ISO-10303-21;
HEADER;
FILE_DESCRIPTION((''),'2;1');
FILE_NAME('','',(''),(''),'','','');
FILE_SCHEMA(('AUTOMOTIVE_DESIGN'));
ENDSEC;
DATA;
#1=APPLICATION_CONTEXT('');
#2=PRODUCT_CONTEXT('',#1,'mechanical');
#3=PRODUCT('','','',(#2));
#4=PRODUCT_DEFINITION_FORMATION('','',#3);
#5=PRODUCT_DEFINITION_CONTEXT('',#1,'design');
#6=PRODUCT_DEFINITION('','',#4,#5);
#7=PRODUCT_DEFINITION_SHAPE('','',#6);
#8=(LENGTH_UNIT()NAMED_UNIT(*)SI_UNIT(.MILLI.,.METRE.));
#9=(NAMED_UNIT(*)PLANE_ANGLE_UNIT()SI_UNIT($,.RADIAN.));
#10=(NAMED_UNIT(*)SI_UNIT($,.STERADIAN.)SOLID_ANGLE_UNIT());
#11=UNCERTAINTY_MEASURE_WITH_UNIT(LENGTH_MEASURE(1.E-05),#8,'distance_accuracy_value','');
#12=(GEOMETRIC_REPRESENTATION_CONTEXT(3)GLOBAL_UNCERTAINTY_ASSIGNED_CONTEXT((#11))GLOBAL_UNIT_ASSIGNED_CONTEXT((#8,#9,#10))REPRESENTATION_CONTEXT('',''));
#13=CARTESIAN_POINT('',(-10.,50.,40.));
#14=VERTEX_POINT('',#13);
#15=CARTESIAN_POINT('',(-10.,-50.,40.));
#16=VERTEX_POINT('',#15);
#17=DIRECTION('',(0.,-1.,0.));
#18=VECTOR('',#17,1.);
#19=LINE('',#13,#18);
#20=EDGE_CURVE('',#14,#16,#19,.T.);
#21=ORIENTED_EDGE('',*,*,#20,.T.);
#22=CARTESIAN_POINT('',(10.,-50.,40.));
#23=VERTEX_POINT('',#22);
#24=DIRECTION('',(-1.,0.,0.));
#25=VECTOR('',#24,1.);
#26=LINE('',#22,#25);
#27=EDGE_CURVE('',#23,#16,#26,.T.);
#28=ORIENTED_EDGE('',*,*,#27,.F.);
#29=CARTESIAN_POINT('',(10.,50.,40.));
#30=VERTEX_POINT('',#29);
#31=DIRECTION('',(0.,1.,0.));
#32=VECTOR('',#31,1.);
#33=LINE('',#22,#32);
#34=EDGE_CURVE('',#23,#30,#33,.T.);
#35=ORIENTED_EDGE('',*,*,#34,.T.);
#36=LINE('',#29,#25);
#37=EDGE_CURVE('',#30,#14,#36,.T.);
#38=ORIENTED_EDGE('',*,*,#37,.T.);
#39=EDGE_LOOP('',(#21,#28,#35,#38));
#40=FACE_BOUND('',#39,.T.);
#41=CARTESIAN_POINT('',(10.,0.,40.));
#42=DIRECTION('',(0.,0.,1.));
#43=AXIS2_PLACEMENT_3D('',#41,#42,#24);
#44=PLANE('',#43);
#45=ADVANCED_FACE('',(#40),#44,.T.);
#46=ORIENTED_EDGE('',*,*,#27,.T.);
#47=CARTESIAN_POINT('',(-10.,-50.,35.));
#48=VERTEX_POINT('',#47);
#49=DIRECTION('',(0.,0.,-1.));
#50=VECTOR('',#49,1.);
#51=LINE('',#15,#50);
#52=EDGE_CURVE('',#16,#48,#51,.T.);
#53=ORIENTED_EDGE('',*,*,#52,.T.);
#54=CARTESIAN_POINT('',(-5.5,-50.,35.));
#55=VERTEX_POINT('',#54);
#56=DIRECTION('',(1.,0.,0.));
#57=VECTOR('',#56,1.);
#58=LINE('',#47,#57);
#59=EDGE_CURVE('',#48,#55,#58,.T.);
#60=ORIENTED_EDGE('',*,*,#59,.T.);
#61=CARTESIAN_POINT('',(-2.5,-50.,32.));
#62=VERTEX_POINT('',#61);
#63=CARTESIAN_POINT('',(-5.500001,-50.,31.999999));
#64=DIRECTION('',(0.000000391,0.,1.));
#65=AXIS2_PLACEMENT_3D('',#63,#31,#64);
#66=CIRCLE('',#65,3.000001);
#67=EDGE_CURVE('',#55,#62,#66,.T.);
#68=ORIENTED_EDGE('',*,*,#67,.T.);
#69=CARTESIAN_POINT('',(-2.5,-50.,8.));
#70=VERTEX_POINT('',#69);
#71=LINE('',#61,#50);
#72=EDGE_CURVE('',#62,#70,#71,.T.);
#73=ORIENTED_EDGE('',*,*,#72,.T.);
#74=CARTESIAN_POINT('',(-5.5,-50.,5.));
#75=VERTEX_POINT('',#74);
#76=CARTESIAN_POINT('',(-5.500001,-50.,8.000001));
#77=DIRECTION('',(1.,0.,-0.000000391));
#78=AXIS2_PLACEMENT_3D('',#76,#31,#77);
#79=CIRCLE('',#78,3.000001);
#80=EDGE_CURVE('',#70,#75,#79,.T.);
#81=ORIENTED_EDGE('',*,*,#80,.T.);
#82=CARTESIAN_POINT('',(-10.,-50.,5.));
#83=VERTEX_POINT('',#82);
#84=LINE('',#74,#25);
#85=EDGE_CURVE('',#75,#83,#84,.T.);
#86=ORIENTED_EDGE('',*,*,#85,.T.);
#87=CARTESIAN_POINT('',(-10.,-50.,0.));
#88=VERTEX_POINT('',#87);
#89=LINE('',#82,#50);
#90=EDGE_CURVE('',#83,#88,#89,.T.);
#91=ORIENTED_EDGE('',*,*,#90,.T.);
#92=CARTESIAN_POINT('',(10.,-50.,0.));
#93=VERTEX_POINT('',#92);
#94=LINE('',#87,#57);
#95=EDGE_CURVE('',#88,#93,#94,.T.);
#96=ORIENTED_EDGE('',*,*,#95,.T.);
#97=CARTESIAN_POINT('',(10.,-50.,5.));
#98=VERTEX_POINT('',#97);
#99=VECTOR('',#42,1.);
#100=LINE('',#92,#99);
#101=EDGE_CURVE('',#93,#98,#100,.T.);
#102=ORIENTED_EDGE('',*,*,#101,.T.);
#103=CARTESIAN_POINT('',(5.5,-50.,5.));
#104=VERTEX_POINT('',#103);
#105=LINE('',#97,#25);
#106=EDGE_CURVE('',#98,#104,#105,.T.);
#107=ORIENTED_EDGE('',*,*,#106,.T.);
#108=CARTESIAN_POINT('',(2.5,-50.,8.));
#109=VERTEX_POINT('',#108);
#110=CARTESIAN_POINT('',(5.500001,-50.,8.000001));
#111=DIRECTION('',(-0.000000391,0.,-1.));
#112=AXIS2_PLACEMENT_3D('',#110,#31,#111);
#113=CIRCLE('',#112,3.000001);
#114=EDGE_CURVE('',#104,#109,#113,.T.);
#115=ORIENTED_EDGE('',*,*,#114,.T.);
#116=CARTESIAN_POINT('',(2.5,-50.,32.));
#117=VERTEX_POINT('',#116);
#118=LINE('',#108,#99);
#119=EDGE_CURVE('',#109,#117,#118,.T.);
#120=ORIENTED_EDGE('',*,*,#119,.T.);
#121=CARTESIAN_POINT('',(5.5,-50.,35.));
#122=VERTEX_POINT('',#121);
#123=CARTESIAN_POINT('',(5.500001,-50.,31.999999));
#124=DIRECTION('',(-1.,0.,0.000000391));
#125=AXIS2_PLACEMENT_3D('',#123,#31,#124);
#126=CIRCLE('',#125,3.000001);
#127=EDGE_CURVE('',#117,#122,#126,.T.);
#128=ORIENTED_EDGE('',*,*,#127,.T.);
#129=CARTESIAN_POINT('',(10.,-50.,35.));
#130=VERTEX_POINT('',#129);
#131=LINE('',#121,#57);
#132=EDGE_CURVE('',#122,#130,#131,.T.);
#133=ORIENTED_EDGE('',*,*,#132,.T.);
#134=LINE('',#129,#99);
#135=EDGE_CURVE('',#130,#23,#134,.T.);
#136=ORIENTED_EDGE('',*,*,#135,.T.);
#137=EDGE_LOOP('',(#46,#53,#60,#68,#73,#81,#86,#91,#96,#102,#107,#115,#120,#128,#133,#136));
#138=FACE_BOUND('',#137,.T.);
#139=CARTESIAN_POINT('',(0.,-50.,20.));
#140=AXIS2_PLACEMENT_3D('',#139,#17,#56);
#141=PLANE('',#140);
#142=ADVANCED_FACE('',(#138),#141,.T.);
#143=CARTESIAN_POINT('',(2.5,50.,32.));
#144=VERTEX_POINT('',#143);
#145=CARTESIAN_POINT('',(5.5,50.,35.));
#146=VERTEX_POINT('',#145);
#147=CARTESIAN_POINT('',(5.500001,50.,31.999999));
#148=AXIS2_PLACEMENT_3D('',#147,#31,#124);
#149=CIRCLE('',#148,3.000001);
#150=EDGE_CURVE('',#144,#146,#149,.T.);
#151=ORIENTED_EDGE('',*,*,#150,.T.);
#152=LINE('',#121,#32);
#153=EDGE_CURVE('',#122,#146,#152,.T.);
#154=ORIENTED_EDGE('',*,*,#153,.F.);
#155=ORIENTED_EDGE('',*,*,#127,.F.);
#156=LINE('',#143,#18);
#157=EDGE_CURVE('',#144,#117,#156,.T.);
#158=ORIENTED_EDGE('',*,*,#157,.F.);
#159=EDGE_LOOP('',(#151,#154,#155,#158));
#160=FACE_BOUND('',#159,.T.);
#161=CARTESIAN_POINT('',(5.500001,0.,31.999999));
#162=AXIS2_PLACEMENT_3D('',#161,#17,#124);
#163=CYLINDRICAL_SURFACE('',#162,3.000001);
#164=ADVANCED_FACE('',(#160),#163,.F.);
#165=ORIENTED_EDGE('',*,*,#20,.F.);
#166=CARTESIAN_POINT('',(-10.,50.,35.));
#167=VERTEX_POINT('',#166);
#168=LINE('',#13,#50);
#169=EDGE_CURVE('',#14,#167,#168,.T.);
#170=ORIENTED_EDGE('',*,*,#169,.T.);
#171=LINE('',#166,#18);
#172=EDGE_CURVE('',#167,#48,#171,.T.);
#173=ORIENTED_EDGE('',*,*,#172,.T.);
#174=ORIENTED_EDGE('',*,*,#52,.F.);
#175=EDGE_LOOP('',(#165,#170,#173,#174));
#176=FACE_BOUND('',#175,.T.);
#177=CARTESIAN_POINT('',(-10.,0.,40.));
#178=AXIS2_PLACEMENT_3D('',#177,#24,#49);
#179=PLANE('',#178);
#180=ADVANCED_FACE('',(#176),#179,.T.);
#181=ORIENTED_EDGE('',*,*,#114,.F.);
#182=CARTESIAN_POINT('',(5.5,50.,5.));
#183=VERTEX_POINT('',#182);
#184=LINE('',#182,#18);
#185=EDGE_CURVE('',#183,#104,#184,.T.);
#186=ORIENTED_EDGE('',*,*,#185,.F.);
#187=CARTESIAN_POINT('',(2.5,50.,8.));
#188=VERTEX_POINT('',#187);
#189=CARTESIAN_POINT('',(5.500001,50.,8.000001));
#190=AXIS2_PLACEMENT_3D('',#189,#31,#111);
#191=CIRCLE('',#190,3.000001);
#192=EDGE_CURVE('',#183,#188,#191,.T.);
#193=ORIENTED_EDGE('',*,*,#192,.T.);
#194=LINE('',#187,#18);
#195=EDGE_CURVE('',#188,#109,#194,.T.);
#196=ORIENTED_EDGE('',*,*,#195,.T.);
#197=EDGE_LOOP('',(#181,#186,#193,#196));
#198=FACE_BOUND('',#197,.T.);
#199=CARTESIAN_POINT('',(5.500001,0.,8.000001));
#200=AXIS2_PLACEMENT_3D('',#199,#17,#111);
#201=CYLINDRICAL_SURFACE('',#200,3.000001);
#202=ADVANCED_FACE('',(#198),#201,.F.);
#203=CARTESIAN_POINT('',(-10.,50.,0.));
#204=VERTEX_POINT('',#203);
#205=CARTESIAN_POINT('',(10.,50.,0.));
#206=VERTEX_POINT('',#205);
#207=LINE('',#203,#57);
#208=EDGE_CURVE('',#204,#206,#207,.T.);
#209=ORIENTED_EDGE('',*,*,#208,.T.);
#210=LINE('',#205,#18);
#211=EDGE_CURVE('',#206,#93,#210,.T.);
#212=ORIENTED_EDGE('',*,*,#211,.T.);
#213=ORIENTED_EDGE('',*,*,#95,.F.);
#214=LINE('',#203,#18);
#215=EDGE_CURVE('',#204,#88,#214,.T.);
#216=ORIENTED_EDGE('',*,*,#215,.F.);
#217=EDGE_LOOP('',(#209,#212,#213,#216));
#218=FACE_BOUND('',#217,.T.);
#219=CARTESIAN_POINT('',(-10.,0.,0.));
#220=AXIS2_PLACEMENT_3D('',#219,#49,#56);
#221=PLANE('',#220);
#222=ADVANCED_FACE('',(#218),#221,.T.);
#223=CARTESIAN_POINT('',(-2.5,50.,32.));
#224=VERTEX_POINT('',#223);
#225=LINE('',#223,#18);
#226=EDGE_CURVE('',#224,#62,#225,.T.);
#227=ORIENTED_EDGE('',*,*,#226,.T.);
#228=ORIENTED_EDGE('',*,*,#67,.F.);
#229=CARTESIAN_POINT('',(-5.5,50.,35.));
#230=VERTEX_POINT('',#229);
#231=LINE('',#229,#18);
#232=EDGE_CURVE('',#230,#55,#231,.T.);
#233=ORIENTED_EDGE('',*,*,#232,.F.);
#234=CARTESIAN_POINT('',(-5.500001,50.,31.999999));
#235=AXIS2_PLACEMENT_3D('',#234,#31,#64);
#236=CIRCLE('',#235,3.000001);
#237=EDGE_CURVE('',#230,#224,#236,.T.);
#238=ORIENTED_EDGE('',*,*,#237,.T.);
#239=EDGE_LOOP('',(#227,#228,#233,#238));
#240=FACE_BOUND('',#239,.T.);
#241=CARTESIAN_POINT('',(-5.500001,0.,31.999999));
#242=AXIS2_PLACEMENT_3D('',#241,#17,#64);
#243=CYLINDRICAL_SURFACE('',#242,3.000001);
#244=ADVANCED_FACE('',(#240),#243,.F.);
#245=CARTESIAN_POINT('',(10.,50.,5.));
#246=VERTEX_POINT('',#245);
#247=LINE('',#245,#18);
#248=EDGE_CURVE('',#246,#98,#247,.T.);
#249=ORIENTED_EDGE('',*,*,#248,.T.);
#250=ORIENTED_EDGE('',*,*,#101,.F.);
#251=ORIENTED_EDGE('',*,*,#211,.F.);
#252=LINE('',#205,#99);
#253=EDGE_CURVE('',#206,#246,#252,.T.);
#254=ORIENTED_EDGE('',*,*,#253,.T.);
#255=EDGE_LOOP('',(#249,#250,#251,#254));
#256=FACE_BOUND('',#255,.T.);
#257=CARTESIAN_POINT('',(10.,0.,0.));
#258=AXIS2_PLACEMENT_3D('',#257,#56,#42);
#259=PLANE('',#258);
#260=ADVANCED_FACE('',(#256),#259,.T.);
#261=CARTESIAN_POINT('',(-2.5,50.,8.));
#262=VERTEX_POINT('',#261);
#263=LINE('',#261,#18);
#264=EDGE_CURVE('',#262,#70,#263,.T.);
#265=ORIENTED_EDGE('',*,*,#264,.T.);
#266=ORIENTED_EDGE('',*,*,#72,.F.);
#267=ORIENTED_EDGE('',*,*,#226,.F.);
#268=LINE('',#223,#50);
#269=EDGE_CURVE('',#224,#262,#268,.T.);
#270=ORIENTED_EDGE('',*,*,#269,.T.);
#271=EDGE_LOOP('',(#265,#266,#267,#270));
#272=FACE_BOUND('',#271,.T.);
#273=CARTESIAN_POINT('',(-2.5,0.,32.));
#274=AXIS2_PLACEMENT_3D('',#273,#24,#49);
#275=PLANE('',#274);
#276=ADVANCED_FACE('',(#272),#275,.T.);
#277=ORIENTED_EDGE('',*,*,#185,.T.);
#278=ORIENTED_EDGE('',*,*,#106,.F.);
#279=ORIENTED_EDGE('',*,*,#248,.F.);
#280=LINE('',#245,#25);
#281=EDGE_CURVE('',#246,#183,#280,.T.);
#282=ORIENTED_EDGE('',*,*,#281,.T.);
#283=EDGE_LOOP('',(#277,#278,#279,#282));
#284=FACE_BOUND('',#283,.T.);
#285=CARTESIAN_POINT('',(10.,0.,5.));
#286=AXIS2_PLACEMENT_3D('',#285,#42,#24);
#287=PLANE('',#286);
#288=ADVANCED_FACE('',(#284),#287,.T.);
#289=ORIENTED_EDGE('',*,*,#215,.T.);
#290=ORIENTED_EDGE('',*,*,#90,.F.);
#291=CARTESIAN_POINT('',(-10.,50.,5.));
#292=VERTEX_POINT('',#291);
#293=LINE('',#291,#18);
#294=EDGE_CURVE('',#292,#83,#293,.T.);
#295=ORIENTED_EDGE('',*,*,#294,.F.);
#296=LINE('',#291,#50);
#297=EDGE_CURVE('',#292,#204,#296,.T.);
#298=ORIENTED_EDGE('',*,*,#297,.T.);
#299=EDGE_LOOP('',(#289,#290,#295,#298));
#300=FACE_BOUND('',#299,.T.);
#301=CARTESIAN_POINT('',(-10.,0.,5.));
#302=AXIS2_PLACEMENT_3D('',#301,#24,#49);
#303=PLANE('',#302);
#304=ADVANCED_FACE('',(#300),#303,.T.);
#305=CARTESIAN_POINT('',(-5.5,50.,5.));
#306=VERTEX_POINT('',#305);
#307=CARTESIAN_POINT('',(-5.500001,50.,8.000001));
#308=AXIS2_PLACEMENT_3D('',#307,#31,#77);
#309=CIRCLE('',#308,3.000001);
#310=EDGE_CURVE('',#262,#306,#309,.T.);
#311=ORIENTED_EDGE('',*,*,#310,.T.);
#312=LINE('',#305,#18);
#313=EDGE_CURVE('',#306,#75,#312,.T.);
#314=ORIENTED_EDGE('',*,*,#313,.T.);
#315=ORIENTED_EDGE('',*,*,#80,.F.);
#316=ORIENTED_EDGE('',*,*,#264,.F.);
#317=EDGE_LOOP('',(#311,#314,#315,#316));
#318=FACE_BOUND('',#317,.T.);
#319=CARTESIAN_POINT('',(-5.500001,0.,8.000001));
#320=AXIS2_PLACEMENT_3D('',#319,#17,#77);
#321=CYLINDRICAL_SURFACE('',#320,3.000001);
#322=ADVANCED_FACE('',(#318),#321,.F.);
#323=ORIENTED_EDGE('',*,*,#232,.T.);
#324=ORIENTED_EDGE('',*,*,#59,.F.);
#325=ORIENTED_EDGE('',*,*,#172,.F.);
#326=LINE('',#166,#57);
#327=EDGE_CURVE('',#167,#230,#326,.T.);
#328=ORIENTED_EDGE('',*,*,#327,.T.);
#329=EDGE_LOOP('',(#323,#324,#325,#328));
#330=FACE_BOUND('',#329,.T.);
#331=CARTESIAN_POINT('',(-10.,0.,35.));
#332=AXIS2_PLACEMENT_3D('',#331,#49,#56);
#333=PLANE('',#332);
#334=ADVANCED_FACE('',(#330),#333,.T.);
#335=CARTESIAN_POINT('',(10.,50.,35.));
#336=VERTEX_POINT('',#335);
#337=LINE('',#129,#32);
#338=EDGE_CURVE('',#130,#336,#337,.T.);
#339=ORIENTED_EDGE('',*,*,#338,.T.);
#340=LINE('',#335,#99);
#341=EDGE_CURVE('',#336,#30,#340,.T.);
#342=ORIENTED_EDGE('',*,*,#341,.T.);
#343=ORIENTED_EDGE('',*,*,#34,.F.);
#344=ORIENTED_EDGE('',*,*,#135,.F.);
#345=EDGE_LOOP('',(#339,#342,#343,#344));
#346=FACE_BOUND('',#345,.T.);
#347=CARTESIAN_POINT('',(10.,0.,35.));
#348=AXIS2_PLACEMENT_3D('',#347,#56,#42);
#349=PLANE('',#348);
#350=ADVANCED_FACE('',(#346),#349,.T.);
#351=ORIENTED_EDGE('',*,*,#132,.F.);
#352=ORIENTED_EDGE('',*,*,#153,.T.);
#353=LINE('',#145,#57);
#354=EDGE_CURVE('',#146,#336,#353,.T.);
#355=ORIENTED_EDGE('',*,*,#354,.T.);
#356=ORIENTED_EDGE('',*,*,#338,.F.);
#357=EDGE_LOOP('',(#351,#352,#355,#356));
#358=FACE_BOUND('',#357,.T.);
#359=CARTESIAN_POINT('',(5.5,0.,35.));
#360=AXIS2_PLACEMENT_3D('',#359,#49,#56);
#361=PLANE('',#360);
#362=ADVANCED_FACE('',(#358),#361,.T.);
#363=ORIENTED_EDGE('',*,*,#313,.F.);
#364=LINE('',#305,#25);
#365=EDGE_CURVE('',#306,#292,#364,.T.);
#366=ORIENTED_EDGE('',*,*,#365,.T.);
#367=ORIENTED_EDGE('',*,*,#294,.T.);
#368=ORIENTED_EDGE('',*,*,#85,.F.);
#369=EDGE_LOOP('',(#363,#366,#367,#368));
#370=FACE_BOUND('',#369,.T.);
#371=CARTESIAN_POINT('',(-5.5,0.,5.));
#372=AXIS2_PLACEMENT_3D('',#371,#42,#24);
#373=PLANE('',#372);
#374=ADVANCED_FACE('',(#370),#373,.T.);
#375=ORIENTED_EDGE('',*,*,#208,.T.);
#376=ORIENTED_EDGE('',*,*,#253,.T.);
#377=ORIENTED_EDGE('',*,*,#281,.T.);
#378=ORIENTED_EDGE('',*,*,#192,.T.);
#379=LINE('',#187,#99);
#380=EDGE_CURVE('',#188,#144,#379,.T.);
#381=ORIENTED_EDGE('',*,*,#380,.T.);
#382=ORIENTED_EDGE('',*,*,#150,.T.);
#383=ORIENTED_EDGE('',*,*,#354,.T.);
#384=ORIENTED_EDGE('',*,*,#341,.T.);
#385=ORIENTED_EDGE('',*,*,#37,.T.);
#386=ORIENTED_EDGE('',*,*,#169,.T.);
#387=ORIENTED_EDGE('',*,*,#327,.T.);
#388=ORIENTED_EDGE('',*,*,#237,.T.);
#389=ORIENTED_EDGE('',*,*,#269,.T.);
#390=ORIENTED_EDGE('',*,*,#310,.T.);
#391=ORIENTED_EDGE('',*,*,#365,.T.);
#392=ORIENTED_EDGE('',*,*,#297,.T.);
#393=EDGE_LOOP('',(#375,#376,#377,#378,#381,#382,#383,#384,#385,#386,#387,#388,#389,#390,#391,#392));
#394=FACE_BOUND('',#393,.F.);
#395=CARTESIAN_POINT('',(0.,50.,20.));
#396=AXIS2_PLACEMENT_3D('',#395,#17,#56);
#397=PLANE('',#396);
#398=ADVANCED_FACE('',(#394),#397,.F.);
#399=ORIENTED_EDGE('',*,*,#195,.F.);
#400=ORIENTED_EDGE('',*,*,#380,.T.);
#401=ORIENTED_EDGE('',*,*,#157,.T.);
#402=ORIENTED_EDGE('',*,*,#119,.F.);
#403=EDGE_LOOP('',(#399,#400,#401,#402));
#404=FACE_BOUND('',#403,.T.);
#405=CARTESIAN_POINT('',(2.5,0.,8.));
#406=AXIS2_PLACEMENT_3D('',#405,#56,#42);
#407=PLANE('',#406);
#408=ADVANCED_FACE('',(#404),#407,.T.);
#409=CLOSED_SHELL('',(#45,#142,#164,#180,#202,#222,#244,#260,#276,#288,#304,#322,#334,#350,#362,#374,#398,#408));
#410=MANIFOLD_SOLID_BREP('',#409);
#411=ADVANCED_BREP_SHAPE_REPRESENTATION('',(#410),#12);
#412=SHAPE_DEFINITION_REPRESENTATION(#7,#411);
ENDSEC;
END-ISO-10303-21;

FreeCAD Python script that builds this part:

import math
import FreeCAD as App
import Part
import Sketcher
from FreeCAD import Vector
Q = App.Units.Quantity

doc = App.newDocument("Part")
body = doc.addObject("PartDesign::Body", "Body")

sketch1 = doc.addObject("Sketcher::SketchObject", "Sketch")
body.addObject(sketch1)
sketch1.AttachmentSupport = (doc.XZ_Plane, [""])
sketch1.MapMode = "FlatFace"
sketch1.addGeometry(Part.LineSegment(Vector(10, 40, 0), Vector(-10, 40, 0)), False)
sketch1.addGeometry(Part.LineSegment(Vector(-10, 40, 0), Vector(-10, 35, 0)), False)
sketch1.addGeometry(Part.LineSegment(Vector(-10, 35, 0), Vector(-5.5, 35, 0)), False)
sketch1.addGeometry(Part.ArcOfCircle(Part.Circle(Vector(-5.5, 32, 0), Vector(0, 0, 1), 3), math.radians(0), math.radians(90)), False)
sketch1.addGeometry(Part.LineSegment(Vector(-2.5, 32, 0), Vector(-2.5, 8, 0)), False)
sketch1.addGeometry(Part.ArcOfCircle(Part.Circle(Vector(-5.5, 8, 0), Vector(0, 0, 1), 3), math.radians(-90), math.radians(0)), False)
sketch1.addGeometry(Part.LineSegment(Vector(-5.5, 5, 0), Vector(-10, 5, 0)), False)
sketch1.addGeometry(Part.LineSegment(Vector(-10, 5, 0), Vector(-10, 0, 0)), False)
sketch1.addGeometry(Part.LineSegment(Vector(-10, 0, 0), Vector(10, 0, 0)), False)
sketch1.addGeometry(Part.LineSegment(Vector(10, 0, 0), Vector(10, 5, 0)), False)
sketch1.addGeometry(Part.LineSegment(Vector(10, 5, 0), Vector(5.5, 5, 0)), False)
sketch1.addGeometry(Part.ArcOfCircle(Part.Circle(Vector(5.5, 8, 0), Vector(0, 0, 1), 3), math.radians(-180), math.radians(-90)), False)
sketch1.addGeometry(Part.LineSegment(Vector(2.5, 8, 0), Vector(2.5, 32, 0)), False)
sketch1.addGeometry(Part.ArcOfCircle(Part.Circle(Vector(5.5, 32, 0), Vector(0, 0, 1), 3), math.radians(90), math.radians(180)), False)
sketch1.addGeometry(Part.LineSegment(Vector(5.5, 35, 0), Vector(10, 35, 0)), False)
sketch1.addGeometry(Part.LineSegment(Vector(10, 35, 0), Vector(10, 40, 0)), False)
sketch1.addConstraint(Sketcher.Constraint("Coincident", 0, 2, 1, 1))
sketch1.addConstraint(Sketcher.Constraint("Coincident", 1, 2, 2, 1))
sketch1.addConstraint(Sketcher.Constraint("Tangent", 2, 2, 3, 2))
sketch1.addConstraint(Sketcher.Constraint("Tangent", 3, 1, 4, 1))
sketch1.addConstraint(Sketcher.Constraint("Tangent", 4, 2, 5, 2))
sketch1.addConstraint(Sketcher.Constraint("Tangent", 5, 1, 6, 1))
sketch1.addConstraint(Sketcher.Constraint("Coincident", 6, 2, 7, 1))
sketch1.addConstraint(Sketcher.Constraint("Coincident", 7, 2, 8, 1))
sketch1.addConstraint(Sketcher.Constraint("Coincident", 8, 2, 9, 1))
sketch1.addConstraint(Sketcher.Constraint("Coincident", 9, 2, 10, 1))
sketch1.addConstraint(Sketcher.Constraint("Tangent", 10, 2, 11, 2))
sketch1.addConstraint(Sketcher.Constraint("Tangent", 11, 1, 12, 1))
sketch1.addConstraint(Sketcher.Constraint("Tangent", 12, 2, 13, 2))
sketch1.addConstraint(Sketcher.Constraint("Tangent", 13, 1, 14, 1))
sketch1.addConstraint(Sketcher.Constraint("Coincident", 14, 2, 15, 1))
sketch1.addConstraint(Sketcher.Constraint("Coincident", 15, 2, 0, 1))
sketch1.addConstraint(Sketcher.Constraint("Horizontal", 0))
sketch1.addConstraint(Sketcher.Constraint("Vertical", 1))
sketch1.addConstraint(Sketcher.Constraint("Horizontal", 2))
sketch1.addConstraint(Sketcher.Constraint("Vertical", 4))
sketch1.addConstraint(Sketcher.Constraint("Horizontal", 6))
sketch1.addConstraint(Sketcher.Constraint("Vertical", 7))
sketch1.addConstraint(Sketcher.Constraint("Horizontal", 8))
sketch1.addConstraint(Sketcher.Constraint("Vertical", 9))
sketch1.addConstraint(Sketcher.Constraint("Horizontal", 10))
sketch1.addConstraint(Sketcher.Constraint("Vertical", 12))
sketch1.addConstraint(Sketcher.Constraint("Horizontal", 14))
sketch1.addConstraint(Sketcher.Constraint("Vertical", 15))
sketch1.addConstraint(Sketcher.Constraint("Equal", 3, 5))
sketch1.addConstraint(Sketcher.Constraint("Equal", 5, 11))
sketch1.addConstraint(Sketcher.Constraint("Equal", 11, 13))
sketch1.addConstraint(Sketcher.Constraint("Symmetric", 7, 2, 8, 2, -1, 1))
sketch1.addConstraint(Sketcher.Constraint("Symmetric", 5, 3, 11, 3, -2))
sketch1.addConstraint(Sketcher.Constraint("Symmetric", 1, 2, 14, 2, -2))
sketch1.addConstraint(Sketcher.Constraint("Vertical", 1, 2, 6, 2))
sketch1.addConstraint(Sketcher.Constraint("Equal", 1, 7))
sketch1.addConstraint(Sketcher.Constraint("Radius", 3, Q("3.000001 mm")))
sketch1.addConstraint(Sketcher.Constraint("DistanceX", 0, 2, 0, 1, Q("20 mm")))
sketch1.addConstraint(Sketcher.Constraint("DistanceY", 1, 2, 1, 1, Q("5 mm")))
sketch1.addConstraint(Sketcher.Constraint("DistanceY", 4, 2, 4, 1, Q("24 mm")))
sketch1.addConstraint(Sketcher.Constraint("DistanceX", 2, 1, 2, 2, Q("4.5 mm")))
pad1 = doc.addObject("PartDesign::Pad", "Pad")
body.addObject(pad1)
pad1.Profile = sketch1
pad1.Length = 100
pad1.Midplane = True

doc.recompute()
